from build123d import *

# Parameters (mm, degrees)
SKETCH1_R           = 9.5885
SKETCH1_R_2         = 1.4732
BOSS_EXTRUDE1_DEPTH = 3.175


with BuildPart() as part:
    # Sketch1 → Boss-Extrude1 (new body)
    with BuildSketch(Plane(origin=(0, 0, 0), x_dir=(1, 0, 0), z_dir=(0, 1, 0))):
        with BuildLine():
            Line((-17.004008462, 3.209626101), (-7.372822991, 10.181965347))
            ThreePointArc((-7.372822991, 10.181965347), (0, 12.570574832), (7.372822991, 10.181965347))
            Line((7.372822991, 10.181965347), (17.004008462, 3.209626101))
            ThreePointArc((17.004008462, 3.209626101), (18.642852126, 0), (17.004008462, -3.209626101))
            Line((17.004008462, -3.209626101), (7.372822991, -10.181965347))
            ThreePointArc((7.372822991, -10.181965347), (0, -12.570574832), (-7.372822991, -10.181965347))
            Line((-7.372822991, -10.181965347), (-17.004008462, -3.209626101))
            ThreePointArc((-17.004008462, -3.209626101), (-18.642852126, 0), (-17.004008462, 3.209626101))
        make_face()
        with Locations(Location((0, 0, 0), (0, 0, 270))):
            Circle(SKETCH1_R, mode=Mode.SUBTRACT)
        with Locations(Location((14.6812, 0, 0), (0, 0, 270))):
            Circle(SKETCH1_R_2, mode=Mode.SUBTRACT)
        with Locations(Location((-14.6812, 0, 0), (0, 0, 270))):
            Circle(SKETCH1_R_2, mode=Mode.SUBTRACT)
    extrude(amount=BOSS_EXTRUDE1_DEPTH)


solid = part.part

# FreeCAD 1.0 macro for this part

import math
import FreeCAD as App
import Part
import Sketcher
from FreeCAD import Vector
Q = App.Units.Quantity

doc = App.newDocument("Part")
body = doc.addObject("PartDesign::Body", "Body")

# Sketch on XZ plane
sketch1 = body.newObject("Sketcher::SketchObject", "Sketch")
sketch1.AttachmentSupport = (doc.getObject("XZ_Plane"), [""])
sketch1.MapMode = "FlatFace"
sketch1.addGeometry(Part.LineSegment(Vector(-7.4, -10.2, 0), Vector(-17, -3.2, 0)), False)
sketch1.addGeometry(Part.ArcOfCircle(Part.Circle(Vector(-14.7, 0, 0), Vector(0, 0, 1), 4), math.radians(126), math.radians(234)), False)
sketch1.addGeometry(Part.LineSegment(Vector(-17, 3.2, 0), Vector(-7.4, 10.2, 0)), False)
sketch1.addGeometry(Part.ArcOfCircle(Part.Circle(Vector(0, 0, 0), Vector(0, 0, 1), 12.6), math.radians(54), math.radians(126)), False)
sketch1.addGeometry(Part.LineSegment(Vector(7.4, 10.2, 0), Vector(17, 3.2, 0)), False)
sketch1.addGeometry(Part.ArcOfCircle(Part.Circle(Vector(14.7, 0, 0), Vector(0, 0, 1), 4), math.radians(-54), math.radians(54)), False)
sketch1.addGeometry(Part.LineSegment(Vector(17, -3.2, 0), Vector(7.4, -10.2, 0)), False)
sketch1.addGeometry(Part.ArcOfCircle(Part.Circle(Vector(0, 0, 0), Vector(0, 0, 1), 12.6), math.radians(-126), math.radians(-54)), False)
sketch1.addGeometry(Part.Circle(Vector(14.7, 0, 0), Vector(0, 0, 1), 1.5), False)
sketch1.addGeometry(Part.Circle(Vector(0, 0, 0), Vector(0, 0, 1), 9.6), False)
sketch1.addGeometry(Part.Circle(Vector(-14.7, 0, 0), Vector(0, 0, 1), 1.5), False)
sketch1.addConstraint(Sketcher.Constraint("Tangent", 0, 2, 1, 2))
sketch1.addConstraint(Sketcher.Constraint("Tangent", 1, 1, 2, 1))
sketch1.addConstraint(Sketcher.Constraint("Tangent", 2, 2, 3, 2))
sketch1.addConstraint(Sketcher.Constraint("Tangent", 3, 1, 4, 1))
sketch1.addConstraint(Sketcher.Constraint("Tangent", 4, 2, 5, 2))
sketch1.addConstraint(Sketcher.Constraint("Tangent", 5, 1, 6, 1))
sketch1.addConstraint(Sketcher.Constraint("Tangent", 6, 2, 7, 2))
sketch1.addConstraint(Sketcher.Constraint("Tangent", 7, 1, 0, 1))
sketch1.addConstraint(Sketcher.Constraint("Coincident", 9, 3, -1, 1))
sketch1.addConstraint(Sketcher.Constraint("Equal", 1, 5))
sketch1.addConstraint(Sketcher.Constraint("Equal", 3, 7))
sketch1.addConstraint(Sketcher.Constraint("Equal", 8, 10))
sketch1.addConstraint(Sketcher.Constraint("Symmetric", 1, 3, 5, 3, -1, 1))
sketch1.addConstraint(Sketcher.Constraint("Symmetric", 3, 3, 7, 3, -1, 1))
sketch1.addConstraint(Sketcher.Constraint("Symmetric", 8, 3, 10, 3, -1, 1))
sketch1.addConstraint(Sketcher.Constraint("Symmetric", 2, 2, 3, 1, -2))
sketch1.addConstraint(Sketcher.Constraint("PointOnObject", 8, 3, -1))
sketch1.addConstraint(Sketcher.Constraint("Diameter", 8, Q("0.116 in")))
sketch1.addConstraint(Sketcher.Constraint("Diameter", 9, Q("0.755 in")))
sketch1.addConstraint(Sketcher.Constraint("Radius", 1, Q("0.156 in")))
sketch1.addConstraint(Sketcher.Constraint("Radius", 3, Q("0.495 in")))
sketch1.addConstraint(Sketcher.Constraint("DistanceX", -1, 1, 8, 3, Q("0.578 in")))
sketch1.addConstraint(Sketcher.Constraint("DistanceY", 0, 2, 3, 3, 3.207201))
sketch1.addConstraint(Sketcher.Constraint("Distance", 0, 11.890048))
pad1 = body.newObject("PartDesign::Pad", "Pad")
pad1.Profile = sketch1
pad1.Length = Q("0.125 in")
pad1.Reversed = True

doc.recompute()
